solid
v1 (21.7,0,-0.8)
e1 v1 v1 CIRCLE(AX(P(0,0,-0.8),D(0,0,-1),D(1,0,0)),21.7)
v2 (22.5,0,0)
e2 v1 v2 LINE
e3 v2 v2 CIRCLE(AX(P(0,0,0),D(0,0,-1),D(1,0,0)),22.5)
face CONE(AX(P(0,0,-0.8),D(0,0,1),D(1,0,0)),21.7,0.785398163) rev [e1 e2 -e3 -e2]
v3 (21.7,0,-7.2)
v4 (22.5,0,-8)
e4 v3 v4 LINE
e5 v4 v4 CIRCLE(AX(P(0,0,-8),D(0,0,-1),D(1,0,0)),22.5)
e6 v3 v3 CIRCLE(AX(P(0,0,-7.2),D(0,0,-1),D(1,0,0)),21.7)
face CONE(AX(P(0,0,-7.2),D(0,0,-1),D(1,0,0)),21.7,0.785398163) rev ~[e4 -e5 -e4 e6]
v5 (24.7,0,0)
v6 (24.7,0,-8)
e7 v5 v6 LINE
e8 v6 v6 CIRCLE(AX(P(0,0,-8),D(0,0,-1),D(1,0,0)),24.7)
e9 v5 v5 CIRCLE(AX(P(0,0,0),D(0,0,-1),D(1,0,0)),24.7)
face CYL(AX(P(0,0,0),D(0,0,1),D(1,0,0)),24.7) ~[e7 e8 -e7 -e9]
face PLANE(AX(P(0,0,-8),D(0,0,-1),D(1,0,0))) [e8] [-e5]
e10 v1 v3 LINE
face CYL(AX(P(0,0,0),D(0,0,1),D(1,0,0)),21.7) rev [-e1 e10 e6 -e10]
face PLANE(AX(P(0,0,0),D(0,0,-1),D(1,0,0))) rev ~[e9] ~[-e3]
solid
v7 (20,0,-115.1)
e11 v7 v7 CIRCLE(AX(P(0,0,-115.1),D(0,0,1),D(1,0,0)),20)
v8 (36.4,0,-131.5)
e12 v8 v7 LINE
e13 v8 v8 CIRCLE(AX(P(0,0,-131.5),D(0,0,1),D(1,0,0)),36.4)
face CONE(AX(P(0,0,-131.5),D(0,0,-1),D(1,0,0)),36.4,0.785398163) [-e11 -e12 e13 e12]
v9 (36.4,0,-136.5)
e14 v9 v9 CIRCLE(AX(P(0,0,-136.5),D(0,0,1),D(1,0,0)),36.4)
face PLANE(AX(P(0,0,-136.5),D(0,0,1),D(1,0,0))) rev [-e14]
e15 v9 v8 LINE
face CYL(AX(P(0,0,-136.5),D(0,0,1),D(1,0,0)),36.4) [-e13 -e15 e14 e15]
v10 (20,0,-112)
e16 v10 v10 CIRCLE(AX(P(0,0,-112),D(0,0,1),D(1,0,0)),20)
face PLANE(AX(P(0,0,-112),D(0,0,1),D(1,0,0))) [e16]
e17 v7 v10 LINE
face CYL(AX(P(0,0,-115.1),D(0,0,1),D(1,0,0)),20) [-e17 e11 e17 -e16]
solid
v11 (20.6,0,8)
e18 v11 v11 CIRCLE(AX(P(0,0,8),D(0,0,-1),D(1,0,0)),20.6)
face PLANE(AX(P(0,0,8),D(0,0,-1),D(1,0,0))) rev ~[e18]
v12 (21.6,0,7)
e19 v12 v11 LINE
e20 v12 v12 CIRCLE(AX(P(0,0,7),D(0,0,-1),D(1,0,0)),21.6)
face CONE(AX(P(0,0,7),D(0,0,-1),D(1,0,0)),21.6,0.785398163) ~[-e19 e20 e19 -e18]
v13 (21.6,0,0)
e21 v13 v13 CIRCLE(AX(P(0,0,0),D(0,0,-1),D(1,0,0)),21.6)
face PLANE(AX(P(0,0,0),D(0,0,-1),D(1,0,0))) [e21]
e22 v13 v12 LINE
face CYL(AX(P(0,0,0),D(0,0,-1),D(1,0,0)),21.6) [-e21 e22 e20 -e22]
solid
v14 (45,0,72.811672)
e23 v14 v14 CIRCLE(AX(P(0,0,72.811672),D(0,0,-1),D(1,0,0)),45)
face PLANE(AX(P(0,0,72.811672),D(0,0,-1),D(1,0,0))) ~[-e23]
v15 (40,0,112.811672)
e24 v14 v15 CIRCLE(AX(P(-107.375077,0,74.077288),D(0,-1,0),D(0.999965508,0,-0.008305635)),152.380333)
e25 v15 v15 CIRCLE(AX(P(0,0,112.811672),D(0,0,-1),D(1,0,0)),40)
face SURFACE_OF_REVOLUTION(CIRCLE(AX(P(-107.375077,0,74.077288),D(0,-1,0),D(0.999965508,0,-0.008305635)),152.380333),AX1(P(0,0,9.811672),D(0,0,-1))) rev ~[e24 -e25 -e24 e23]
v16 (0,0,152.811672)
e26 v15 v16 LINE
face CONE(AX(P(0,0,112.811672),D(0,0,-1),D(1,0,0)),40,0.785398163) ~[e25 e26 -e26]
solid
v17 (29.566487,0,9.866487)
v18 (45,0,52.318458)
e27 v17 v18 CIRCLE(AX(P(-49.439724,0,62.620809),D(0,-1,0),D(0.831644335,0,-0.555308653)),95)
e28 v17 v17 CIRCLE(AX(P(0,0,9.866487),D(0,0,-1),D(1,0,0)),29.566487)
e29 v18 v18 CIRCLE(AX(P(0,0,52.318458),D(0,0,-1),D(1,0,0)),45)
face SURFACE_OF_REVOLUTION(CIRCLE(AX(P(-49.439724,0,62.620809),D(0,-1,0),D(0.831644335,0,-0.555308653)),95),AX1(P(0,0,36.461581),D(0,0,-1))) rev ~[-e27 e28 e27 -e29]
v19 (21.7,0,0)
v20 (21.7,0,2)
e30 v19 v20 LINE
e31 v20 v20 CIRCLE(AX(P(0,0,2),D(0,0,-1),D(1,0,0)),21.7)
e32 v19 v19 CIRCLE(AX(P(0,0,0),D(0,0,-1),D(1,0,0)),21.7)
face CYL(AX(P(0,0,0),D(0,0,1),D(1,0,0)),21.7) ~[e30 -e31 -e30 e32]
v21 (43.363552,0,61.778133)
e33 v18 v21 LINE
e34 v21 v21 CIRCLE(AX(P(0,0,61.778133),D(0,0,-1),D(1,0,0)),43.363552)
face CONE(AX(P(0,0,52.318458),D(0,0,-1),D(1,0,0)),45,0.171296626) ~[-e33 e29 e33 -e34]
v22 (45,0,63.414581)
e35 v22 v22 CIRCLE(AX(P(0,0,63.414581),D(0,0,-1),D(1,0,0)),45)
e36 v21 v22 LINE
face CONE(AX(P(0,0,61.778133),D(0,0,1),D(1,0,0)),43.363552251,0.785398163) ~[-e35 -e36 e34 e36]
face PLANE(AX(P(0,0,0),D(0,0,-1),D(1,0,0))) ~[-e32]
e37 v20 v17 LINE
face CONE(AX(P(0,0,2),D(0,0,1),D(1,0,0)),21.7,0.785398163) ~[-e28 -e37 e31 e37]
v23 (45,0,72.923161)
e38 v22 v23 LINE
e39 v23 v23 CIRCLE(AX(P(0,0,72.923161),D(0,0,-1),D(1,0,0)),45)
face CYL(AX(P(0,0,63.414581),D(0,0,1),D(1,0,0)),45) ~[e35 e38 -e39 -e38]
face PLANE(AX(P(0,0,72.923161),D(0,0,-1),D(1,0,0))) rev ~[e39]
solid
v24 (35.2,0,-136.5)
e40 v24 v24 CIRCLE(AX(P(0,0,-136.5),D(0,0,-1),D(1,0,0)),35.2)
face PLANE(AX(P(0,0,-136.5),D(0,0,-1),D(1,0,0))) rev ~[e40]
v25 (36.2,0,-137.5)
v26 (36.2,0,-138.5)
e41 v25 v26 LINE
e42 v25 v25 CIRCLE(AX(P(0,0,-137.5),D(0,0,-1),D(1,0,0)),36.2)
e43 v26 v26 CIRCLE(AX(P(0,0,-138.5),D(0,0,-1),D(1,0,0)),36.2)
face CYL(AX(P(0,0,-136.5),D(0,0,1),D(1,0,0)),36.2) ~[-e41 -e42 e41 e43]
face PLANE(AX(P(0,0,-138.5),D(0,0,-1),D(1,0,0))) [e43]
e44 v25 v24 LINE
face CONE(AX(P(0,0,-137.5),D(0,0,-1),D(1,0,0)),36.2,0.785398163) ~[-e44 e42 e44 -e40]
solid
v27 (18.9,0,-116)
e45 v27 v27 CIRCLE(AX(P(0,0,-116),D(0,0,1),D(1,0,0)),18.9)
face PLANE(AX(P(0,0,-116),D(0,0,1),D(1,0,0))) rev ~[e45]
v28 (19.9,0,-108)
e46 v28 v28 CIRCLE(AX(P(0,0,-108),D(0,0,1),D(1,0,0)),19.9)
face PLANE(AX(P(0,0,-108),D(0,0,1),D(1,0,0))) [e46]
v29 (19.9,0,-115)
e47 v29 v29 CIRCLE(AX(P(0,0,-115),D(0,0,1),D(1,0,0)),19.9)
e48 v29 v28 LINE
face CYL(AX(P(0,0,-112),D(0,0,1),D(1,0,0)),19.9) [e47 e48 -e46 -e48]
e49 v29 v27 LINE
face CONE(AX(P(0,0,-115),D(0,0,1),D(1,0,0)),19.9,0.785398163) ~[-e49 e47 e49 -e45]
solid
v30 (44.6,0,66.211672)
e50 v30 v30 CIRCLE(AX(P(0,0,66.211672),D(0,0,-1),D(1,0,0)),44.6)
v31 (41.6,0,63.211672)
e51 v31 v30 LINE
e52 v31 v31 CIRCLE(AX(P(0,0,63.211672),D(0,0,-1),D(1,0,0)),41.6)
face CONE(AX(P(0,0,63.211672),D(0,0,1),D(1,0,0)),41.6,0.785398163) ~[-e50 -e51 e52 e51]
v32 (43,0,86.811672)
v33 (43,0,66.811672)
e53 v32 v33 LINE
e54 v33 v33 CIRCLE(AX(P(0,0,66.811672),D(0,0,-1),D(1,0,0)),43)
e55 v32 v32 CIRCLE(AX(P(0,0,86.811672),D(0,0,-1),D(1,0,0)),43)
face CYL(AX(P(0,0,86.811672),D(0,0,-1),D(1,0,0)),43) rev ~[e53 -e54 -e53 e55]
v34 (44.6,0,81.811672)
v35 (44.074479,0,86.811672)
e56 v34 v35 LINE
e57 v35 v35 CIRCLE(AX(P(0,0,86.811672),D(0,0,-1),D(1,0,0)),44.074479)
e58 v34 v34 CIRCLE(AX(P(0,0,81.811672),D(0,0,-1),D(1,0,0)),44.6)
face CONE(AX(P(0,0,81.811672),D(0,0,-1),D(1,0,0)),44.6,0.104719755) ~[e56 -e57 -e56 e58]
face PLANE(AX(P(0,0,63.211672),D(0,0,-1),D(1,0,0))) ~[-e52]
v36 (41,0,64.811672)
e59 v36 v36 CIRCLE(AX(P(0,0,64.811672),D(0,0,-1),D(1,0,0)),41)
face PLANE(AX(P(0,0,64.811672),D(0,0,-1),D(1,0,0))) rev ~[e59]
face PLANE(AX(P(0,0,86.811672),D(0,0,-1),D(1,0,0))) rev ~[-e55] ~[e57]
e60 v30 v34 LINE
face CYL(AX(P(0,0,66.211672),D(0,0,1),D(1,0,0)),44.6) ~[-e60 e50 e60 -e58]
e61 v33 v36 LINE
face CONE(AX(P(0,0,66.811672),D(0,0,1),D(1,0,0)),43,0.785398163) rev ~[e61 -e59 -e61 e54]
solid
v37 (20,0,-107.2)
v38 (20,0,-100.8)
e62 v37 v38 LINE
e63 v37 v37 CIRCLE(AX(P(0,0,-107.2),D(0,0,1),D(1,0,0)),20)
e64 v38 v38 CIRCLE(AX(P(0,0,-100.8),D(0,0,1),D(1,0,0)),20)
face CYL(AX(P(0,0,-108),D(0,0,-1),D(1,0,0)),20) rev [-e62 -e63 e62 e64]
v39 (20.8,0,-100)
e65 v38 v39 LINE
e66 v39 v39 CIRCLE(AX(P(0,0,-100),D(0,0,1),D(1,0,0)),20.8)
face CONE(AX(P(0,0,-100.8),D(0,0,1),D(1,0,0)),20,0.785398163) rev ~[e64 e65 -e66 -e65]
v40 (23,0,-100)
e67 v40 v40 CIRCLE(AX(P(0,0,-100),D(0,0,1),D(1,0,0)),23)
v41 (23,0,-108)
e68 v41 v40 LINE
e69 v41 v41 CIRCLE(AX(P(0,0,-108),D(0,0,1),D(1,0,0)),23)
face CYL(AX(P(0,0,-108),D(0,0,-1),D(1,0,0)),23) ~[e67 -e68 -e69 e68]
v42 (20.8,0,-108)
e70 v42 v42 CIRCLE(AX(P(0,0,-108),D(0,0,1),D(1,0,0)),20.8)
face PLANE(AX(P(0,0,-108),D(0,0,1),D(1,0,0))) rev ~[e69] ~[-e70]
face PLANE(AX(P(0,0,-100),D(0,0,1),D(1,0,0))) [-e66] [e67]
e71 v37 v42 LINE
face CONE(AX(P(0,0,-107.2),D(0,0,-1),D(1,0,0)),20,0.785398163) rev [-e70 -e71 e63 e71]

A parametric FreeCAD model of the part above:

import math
import FreeCAD as App
import Part
import Sketcher
Q = App.Units.Quantity


def edges_at(feature, points):
    """Names of the edges that pass closest to the given points."""
    edges = feature.Shape.Edges
    near = lambda p: min(range(len(edges)), key=lambda i: edges[i].distToShape(Part.Vertex(*p))[0])
    return sorted({f"Edge{near(p) + 1}" for p in points})

doc = App.newDocument("Part")
body = doc.addObject("PartDesign::Body", "Body")

sketch1 = doc.addObject("Sketcher::SketchObject", "Sketch")
body.addObject(sketch1)
sketch1.AttachmentSupport = (doc.XZ_Plane, [""])
sketch1.MapMode = "FlatFace"
sketch1.addGeometry(Part.LineSegment(App.Vector(40, 113, 0), App.Vector(0, 153, 0)), False)
sketch1.addGeometry(Part.LineSegment(App.Vector(0, 153, 0), App.Vector(0, 73, 0)), False)
sketch1.addGeometry(Part.LineSegment(App.Vector(0, 73, 0), App.Vector(45, 73, 0)), False)
sketch1.addGeometry(Part.ArcOfCircle(Part.Circle(App.Vector(-107, 74, 0), App.Vector(0, 0, 1), 152), math.radians(-0.48), math.radians(14.73)), False)
sketch1.addConstraint(Sketcher.Constraint("Coincident", 0, 2, 1, 1))
sketch1.addConstraint(Sketcher.Constraint("Coincident", 1, 2, 2, 1))
sketch1.addConstraint(Sketcher.Constraint("Coincident", 2, 2, 3, 1))
sketch1.addConstraint(Sketcher.Constraint("Coincident", 3, 2, 0, 1))
sketch1.addConstraint(Sketcher.Constraint("Vertical", 1))
sketch1.addConstraint(Sketcher.Constraint("Horizontal", 2))
sketch1.addConstraint(Sketcher.Constraint("PointOnObject", 0, 2, -2))
sketch1.addConstraint(Sketcher.Constraint("DistanceX", 2, 1, 2, 2, Q("45 mm")))
sketch1.addConstraint(Sketcher.Constraint("DistanceY", 1, 2, 1, 1, Q("80 mm")))
sketch1.addConstraint(Sketcher.Constraint("Angle", 0, Q("135 deg")))
sketch1.addConstraint(Sketcher.Constraint("DistanceX", -1, 1, 3, 2, Q("40 mm")))
sketch1.addConstraint(Sketcher.Constraint("Radius", 3, Q("152.380333 mm")))
sketch1.addConstraint(Sketcher.Constraint("DistanceY", -1, 1, 3, 3, Q("74.077288 mm")))
revolution = doc.addObject("PartDesign::Revolution", "Revolution")
body.addObject(revolution)
revolution.Profile = sketch1
revolution.ReferenceAxis = (sketch1, ["V_Axis"])
revolution.Angle = 360
body2 = doc.addObject("PartDesign::Body", "Body001")

sketch2 = doc.addObject("Sketcher::SketchObject", "Sketch001")
body2.addObject(sketch2)
sketch2.AttachmentSupport = (doc.getObject("XZ_Plane001"), [""])
sketch2.MapMode = "FlatFace"
sketch2.addGeometry(Part.LineSegment(App.Vector(41.6, 63.2, 0), App.Vector(44.6, 66.2, 0)), False)
sketch2.addGeometry(Part.LineSegment(App.Vector(44.6, 66.2, 0), App.Vector(44.6, 81.8, 0)), False)
sketch2.addGeometry(Part.LineSegment(App.Vector(44.6, 81.8, 0), App.Vector(44.1, 86.8, 0)), False)
sketch2.addGeometry(Part.LineSegment(App.Vector(44.1, 86.8, 0), App.Vector(43, 86.8, 0)), False)
sketch2.addGeometry(Part.LineSegment(App.Vector(43, 86.8, 0), App.Vector(43, 66.8, 0)), False)
sketch2.addGeometry(Part.LineSegment(App.Vector(43, 66.8, 0), App.Vector(41, 64.8, 0)), False)
sketch2.addGeometry(Part.LineSegment(App.Vector(41, 64.8, 0), App.Vector(0, 64.8, 0)), False)
sketch2.addGeometry(Part.LineSegment(App.Vector(0, 64.8, 0), App.Vector(0, 63.2, 0)), False)
sketch2.addGeometry(Part.LineSegment(App.Vector(0, 63.2, 0), App.Vector(41.6, 63.2, 0)), False)
sketch2.addConstraint(Sketcher.Constraint("Coincident", 0, 2, 1, 1))
sketch2.addConstraint(Sketcher.Constraint("Coincident", 1, 2, 2, 1))
sketch2.addConstraint(Sketcher.Constraint("Coincident", 2, 2, 3, 1))
sketch2.addConstraint(Sketcher.Constraint("Coincident", 3, 2, 4, 1))
sketch2.addConstraint(Sketcher.Constraint("Coincident", 4, 2, 5, 1))
sketch2.addConstraint(Sketcher.Constraint("Coincident", 5, 2, 6, 1))
sketch2.addConstraint(Sketcher.Constraint("Coincident", 6, 2, 7, 1))
sketch2.addConstraint(Sketcher.Constraint("Coincident", 7, 2, 8, 1))
sketch2.addConstraint(Sketcher.Constraint("Coincident", 8, 2, 0, 1))
sketch2.addConstraint(Sketcher.Constraint("Vertical", 1))
sketch2.addConstraint(Sketcher.Constraint("Horizontal", 3))
sketch2.addConstraint(Sketcher.Constraint("Vertical", 4))
sketch2.addConstraint(Sketcher.Constraint("Horizontal", 6))
sketch2.addConstraint(Sketcher.Constraint("Vertical", 7))
sketch2.addConstraint(Sketcher.Constraint("Horizontal", 8))
sketch2.addConstraint(Sketcher.Constraint("PointOnObject", 6, 2, -2))
sketch2.addConstraint(Sketcher.Constraint("Parallel", 0, 5))
sketch2.addConstraint(Sketcher.Constraint("DistanceX", 6, 2, 6, 1, Q("41 mm")))
sketch2.addConstraint(Sketcher.Constraint("DistanceY", 4, 2, 4, 1, Q("20 mm")))
sketch2.addConstraint(Sketcher.Constraint("Angle", 0, Q("45 deg")))
sketch2.addConstraint(Sketcher.Constraint("Angle", 2, Q("96 deg")))
sketch2.addConstraint(Sketcher.Constraint("DistanceX", 8, 1, 8, 2, Q("41.6 mm")))
sketch2.addConstraint(Sketcher.Constraint("DistanceY", 1, 1, 1, 2, Q("15.6 mm")))
sketch2.addConstraint(Sketcher.Constraint("DistanceY", 7, 2, 7, 1, Q("1.6 mm")))
sketch2.addConstraint(Sketcher.Constraint("DistanceX", -1, 1, 3, 2, Q("43 mm")))
sketch2.addConstraint(Sketcher.Constraint("DistanceY", 1, 2, 2, 2, Q("5 mm")))
sketch2.addConstraint(Sketcher.Constraint("DistanceY", -1, 1, 0, 2, Q("66.211672 mm")))
revolution2 = doc.addObject("PartDesign::Revolution", "Revolution001")
body2.addObject(revolution2)
revolution2.Profile = sketch2
revolution2.ReferenceAxis = (sketch2, ["V_Axis"])
revolution2.Angle = 360
body3 = doc.addObject("PartDesign::Body", "Body002")

sketch3 = doc.addObject("Sketcher::SketchObject", "Sketch002")
body3.addObject(sketch3)
sketch3.AttachmentSupport = (doc.getObject("XZ_Plane002"), [""])
sketch3.MapMode = "FlatFace"
sketch3.addGeometry(Part.LineSegment(App.Vector(45, 72.9, 0), App.Vector(0, 72.9, 0)), False)
sketch3.addGeometry(Part.LineSegment(App.Vector(0, 72.9, 0), App.Vector(0, 0, 0)), False)
sketch3.addGeometry(Part.LineSegment(App.Vector(0, 0, 0), App.Vector(21.7, 0, 0)), False)
sketch3.addGeometry(Part.LineSegment(App.Vector(21.7, 0, 0), App.Vector(21.7, 2, 0)), False)
sketch3.addGeometry(Part.LineSegment(App.Vector(21.7, 2, 0), App.Vector(29.6, 9.9, 0)), False)
sketch3.addGeometry(Part.ArcOfCircle(Part.Circle(App.Vector(-49.4, 62.6, 0), App.Vector(0, 0, 1), 95), math.radians(-34), math.radians(-6)), False)
sketch3.addGeometry(Part.LineSegment(App.Vector(45, 52.3, 0), App.Vector(43.4, 61.8, 0)), False)
sketch3.addGeometry(Part.LineSegment(App.Vector(43.4, 61.8, 0), App.Vector(45, 63.4, 0)), False)
sketch3.addGeometry(Part.LineSegment(App.Vector(45, 63.4, 0), App.Vector(45, 72.9, 0)), False)
sketch3.addConstraint(Sketcher.Constraint("Coincident", 0, 2, 1, 1))
sketch3.addConstraint(Sketcher.Constraint("Coincident", 1, 2, 2, 1))
sketch3.addConstraint(Sketcher.Constraint("Coincident", 2, 2, 3, 1))
sketch3.addConstraint(Sketcher.Constraint("Coincident", 3, 2, 4, 1))
sketch3.addConstraint(Sketcher.Constraint("Coincident", 4, 2, 5, 1))
sketch3.addConstraint(Sketcher.Constraint("Coincident", 5, 2, 6, 1))
sketch3.addConstraint(Sketcher.Constraint("Coincident", 6, 2, 7, 1))
sketch3.addConstraint(Sketcher.Constraint("Coincident", 7, 2, 8, 1))
sketch3.addConstraint(Sketcher.Constraint("Coincident", 8, 2, 0, 1))
sketch3.addConstraint(Sketcher.Constraint("Horizontal", 0))
sketch3.addConstraint(Sketcher.Constraint("Vertical", 1))
sketch3.addConstraint(Sketcher.Constraint("Horizontal", 2))
sketch3.addConstraint(Sketcher.Constraint("Vertical", 3))
sketch3.addConstraint(Sketcher.Constraint("Vertical", 8))
sketch3.addConstraint(Sketcher.Constraint("Coincident", 1, 2, -1, 1))
sketch3.addConstraint(Sketcher.Constraint("Parallel", 4, 7))
sketch3.addConstraint(Sketcher.Constraint("Vertical", 5, 2, 7, 2))
sketch3.addConstraint(Sketcher.Constraint("Radius", 5, Q("95 mm")))
sketch3.addConstraint(Sketcher.Constraint("DistanceX", 0, 2, 0, 1, Q("45 mm")))
sketch3.addConstraint(Sketcher.Constraint("DistanceY", 3, 1, 3, 2, Q("2 mm")))
sketch3.addConstraint(Sketcher.Constraint("Angle", 4, Q("45 deg")))
sketch3.addConstraint(Sketcher.Constraint("DistanceX", 2, 1, 2, 2, Q("21.7 mm")))
sketch3.addConstraint(Sketcher.Constraint("DistanceY", 1, 2, 1, 1, Q("72.923161 mm")))
sketch3.addConstraint(Sketcher.Constraint("DistanceY", 8, 1, 8, 2, Q("9.50858 mm")))
sketch3.addConstraint(Sketcher.Constraint("Distance", 6, Q("9.600178 mm")))
sketch3.addConstraint(Sketcher.Constraint("DistanceY", -1, 1, 5, 3, Q("62.620809 mm")))
sketch3.addConstraint(Sketcher.Constraint("DistanceX", 5, 3, 4, 2, Q("79.006212 mm")))
revolution3 = doc.addObject("PartDesign::Revolution", "Revolution002")
body3.addObject(revolution3)
revolution3.Profile = sketch3
revolution3.ReferenceAxis = (sketch3, ["V_Axis"])
revolution3.Angle = 360
body4 = doc.addObject("PartDesign::Body", "Body003")

sketch4 = doc.addObject("Sketcher::SketchObject", "Sketch003")
body4.addObject(sketch4)
sketch4.AttachmentSupport = (doc.getObject("XY_Plane003"), [""])
sketch4.MapMode = "FlatFace"
sketch4.addGeometry(Part.Circle(App.Vector(0, 0, 0), App.Vector(0, 0, 1), 22), False)
sketch4.addConstraint(Sketcher.Constraint("Coincident", 0, 3, -1, 1))
sketch4.addConstraint(Sketcher.Constraint("Diameter", 0, Q("43.2 mm")))
pad1 = doc.addObject("PartDesign::Pad", "Pad")
body4.addObject(pad1)
pad1.Profile = sketch4
pad1.Length = 8
doc.recompute()

chamfer = doc.addObject("PartDesign::Chamfer", "Chamfer")
body4.addObject(chamfer)
chamfer.Base = (pad1, edges_at(pad1, [(-21.6, 0, 8)]))
chamfer.Size = 1
body5 = doc.addObject("PartDesign::Body", "Body004")

sketch5 = doc.addObject("Sketcher::SketchObject", "Sketch004")
body5.addObject(sketch5)
sketch5.AttachmentSupport = (doc.getObject("XZ_Plane004"), [""])
sketch5.MapMode = "FlatFace"
sketch5.addGeometry(Part.LineSegment(App.Vector(20, -112, 0), App.Vector(0, -112, 0)), False)
sketch5.addGeometry(Part.LineSegment(App.Vector(0, -112, 0), App.Vector(0, -136.5, 0)), False)
sketch5.addGeometry(Part.LineSegment(App.Vector(0, -136.5, 0), App.Vector(36.4, -136.5, 0)), False)
sketch5.addGeometry(Part.LineSegment(App.Vector(36.4, -136.5, 0), App.Vector(36.4, -131.5, 0)), False)
sketch5.addGeometry(Part.LineSegment(App.Vector(36.4, -131.5, 0), App.Vector(20, -115.1, 0)), False)
sketch5.addGeometry(Part.LineSegment(App.Vector(20, -115.1, 0), App.Vector(20, -112, 0)), False)
sketch5.addConstraint(Sketcher.Constraint("Coincident", 0, 2, 1, 1))
sketch5.addConstraint(Sketcher.Constraint("Coincident", 1, 2, 2, 1))
sketch5.addConstraint(Sketcher.Constraint("Coincident", 2, 2, 3, 1))
sketch5.addConstraint(Sketcher.Constraint("Coincident", 3, 2, 4, 1))
sketch5.addConstraint(Sketcher.Constraint("Coincident", 4, 2, 5, 1))
sketch5.addConstraint(Sketcher.Constraint("Coincident", 5, 2, 0, 1))
sketch5.addConstraint(Sketcher.Constraint("Horizontal", 0))
sketch5.addConstraint(Sketcher.Constraint("Vertical", 1))
sketch5.addConstraint(Sketcher.Constraint("Horizontal", 2))
sketch5.addConstraint(Sketcher.Constraint("Vertical", 3))
sketch5.addConstraint(Sketcher.Constraint("Vertical", 5))
sketch5.addConstraint(Sketcher.Constraint("PointOnObject", 0, 2, -2))
sketch5.addConstraint(Sketcher.Constraint("DistanceX", 0, 2, 0, 1, Q("20 mm")))
sketch5.addConstraint(Sketcher.Constraint("DistanceY", 3, 1, 3, 2, Q("5 mm")))
sketch5.addConstraint(Sketcher.Constraint("Angle", 4, Q("135 deg")))
sketch5.addConstraint(Sketcher.Constraint("DistanceX", 2, 1, 2, 2, Q("36.4 mm")))
sketch5.addConstraint(Sketcher.Constraint("DistanceY", 1, 2, 1, 1, Q("24.5 mm")))
sketch5.addConstraint(Sketcher.Constraint("DistanceY", 0, 2, -1, 1, Q("112 mm")))
revolution4 = doc.addObject("PartDesign::Revolution", "Revolution003")
body5.addObject(revolution4)
revolution4.Profile = sketch5
revolution4.ReferenceAxis = (sketch5, ["V_Axis"])
revolution4.Angle = 360
body6 = doc.addObject("PartDesign::Body", "Body005")

sketch6 = doc.addObject("Sketcher::SketchObject", "Sketch005")
body6.addObject(sketch6)
sketch6.AttachmentSupport = (doc.getObject("XY_Plane005"), [""])
sketch6.MapMode = "FlatFace"
sketch6.AttachmentOffset = App.Placement(App.Vector(0, 0, -112), App.Rotation())
sketch6.addGeometry(Part.Circle(App.Vector(0, 0, 0), App.Vector(0, 0, 1), 20), False)
sketch6.addConstraint(Sketcher.Constraint("Coincident", 0, 3, -1, 1))
sketch6.addConstraint(Sketcher.Constraint("Diameter", 0, Q("39.8 mm")))
pad2 = doc.addObject("PartDesign::Pad", "Pad001")
body6.addObject(pad2)
pad2.Profile = sketch6
pad2.Length = 8
pad2.Midplane = True
doc.recompute()

chamfer2 = doc.addObject("PartDesign::Chamfer", "Chamfer001")
body6.addObject(chamfer2)
chamfer2.Base = (pad2, edges_at(pad2, [(-19.9, 0, -116)]))
chamfer2.Size = 1
body7 = doc.addObject("PartDesign::Body", "Body006")

sketch7 = doc.addObject("Sketcher::SketchObject", "Sketch006")
body7.addObject(sketch7)
sketch7.AttachmentSupport = (doc.getObject("XY_Plane006"), [""])
sketch7.MapMode = "FlatFace"
sketch7.AttachmentOffset = App.Placement(App.Vector(0, 0, -136.5), App.Rotation())
sketch7.addGeometry(Part.Circle(App.Vector(0, 0, 0), App.Vector(0, 0, 1), 36), False)
sketch7.addConstraint(Sketcher.Constraint("Coincident", 0, 3, -1, 1))
sketch7.addConstraint(Sketcher.Constraint("Diameter", 0, Q("72.4 mm")))
pad3 = doc.addObject("PartDesign::Pad", "Pad002")
body7.addObject(pad3)
pad3.Profile = sketch7
pad3.Length = 2
pad3.Reversed = True
doc.recompute()

chamfer3 = doc.addObject("PartDesign::Chamfer", "Chamfer002")
body7.addObject(chamfer3)
chamfer3.Base = (pad3, edges_at(pad3, [(-36.2, 0, -136.5)]))
chamfer3.Size = 1
body8 = doc.addObject("PartDesign::Body", "Body007")

sketch8 = doc.addObject("Sketcher::SketchObject", "Sketch007")
body8.addObject(sketch8)
sketch8.AttachmentSupport = (doc.getObject("XY_Plane007"), [""])
sketch8.MapMode = "FlatFace"
sketch8.AttachmentOffset = App.Placement(App.Vector(0, 0, -108), App.Rotation())
sketch8.addGeometry(Part.Circle(App.Vector(0, 0, 0), App.Vector(0, 0, 1), 23), False)
sketch8.addGeometry(Part.Circle(App.Vector(0, 0, 0), App.Vector(0, 0, 1), 20), False)
sketch8.addConstraint(Sketcher.Constraint("Coincident", 0, 3, -1, 1))
sketch8.addConstraint(Sketcher.Constraint("Coincident", 1, 3, -1, 1))
sketch8.addConstraint(Sketcher.Constraint("Diameter", 0, Q("46 mm")))
sketch8.addConstraint(Sketcher.Constraint("Diameter", 1, Q("40 mm")))
pad4 = doc.addObject("PartDesign::Pad", "Pad003")
body8.addObject(pad4)
pad4.Profile = sketch8
pad4.Length = 8
doc.recompute()

chamfer4 = doc.addObject("PartDesign::Chamfer", "Chamfer003")
body8.addObject(chamfer4)
chamfer4.Base = (pad4, edges_at(pad4, [(-20, 0, -100), (-20, 0, -108)]))
chamfer4.Size = 0.8
body9 = doc.addObject("PartDesign::Body", "Body008")

sketch9 = doc.addObject("Sketcher::SketchObject", "Sketch008")
body9.addObject(sketch9)
sketch9.AttachmentSupport = (doc.getObject("XY_Plane008"), [""])
sketch9.MapMode = "FlatFace"
sketch9.addGeometry(Part.Circle(App.Vector(0, 0, 0), App.Vector(0, 0, 1), 25), False)
sketch9.addGeometry(Part.Circle(App.Vector(0, 0, 0), App.Vector(0, 0, 1), 22), False)
sketch9.addConstraint(Sketcher.Constraint("Coincident", 0, 3, -1, 1))
sketch9.addConstraint(Sketcher.Constraint("Coincident", 1, 3, -1, 1))
sketch9.addConstraint(Sketcher.Constraint("Diameter", 0, Q("49.4 mm")))
sketch9.addConstraint(Sketcher.Constraint("Diameter", 1, Q("43.4 mm")))
pad5 = doc.addObject("PartDesign::Pad", "Pad004")
body9.addObject(pad5)
pad5.Profile = sketch9
pad5.Length = 8
pad5.Reversed = True
doc.recompute()

chamfer5 = doc.addObject("PartDesign::Chamfer", "Chamfer004")
body9.addObject(chamfer5)
chamfer5.Base = (pad5, edges_at(pad5, [(-21.7, 0, -8), (-21.7, 0, 0)]))
chamfer5.Size = 0.8

doc.recompute()
